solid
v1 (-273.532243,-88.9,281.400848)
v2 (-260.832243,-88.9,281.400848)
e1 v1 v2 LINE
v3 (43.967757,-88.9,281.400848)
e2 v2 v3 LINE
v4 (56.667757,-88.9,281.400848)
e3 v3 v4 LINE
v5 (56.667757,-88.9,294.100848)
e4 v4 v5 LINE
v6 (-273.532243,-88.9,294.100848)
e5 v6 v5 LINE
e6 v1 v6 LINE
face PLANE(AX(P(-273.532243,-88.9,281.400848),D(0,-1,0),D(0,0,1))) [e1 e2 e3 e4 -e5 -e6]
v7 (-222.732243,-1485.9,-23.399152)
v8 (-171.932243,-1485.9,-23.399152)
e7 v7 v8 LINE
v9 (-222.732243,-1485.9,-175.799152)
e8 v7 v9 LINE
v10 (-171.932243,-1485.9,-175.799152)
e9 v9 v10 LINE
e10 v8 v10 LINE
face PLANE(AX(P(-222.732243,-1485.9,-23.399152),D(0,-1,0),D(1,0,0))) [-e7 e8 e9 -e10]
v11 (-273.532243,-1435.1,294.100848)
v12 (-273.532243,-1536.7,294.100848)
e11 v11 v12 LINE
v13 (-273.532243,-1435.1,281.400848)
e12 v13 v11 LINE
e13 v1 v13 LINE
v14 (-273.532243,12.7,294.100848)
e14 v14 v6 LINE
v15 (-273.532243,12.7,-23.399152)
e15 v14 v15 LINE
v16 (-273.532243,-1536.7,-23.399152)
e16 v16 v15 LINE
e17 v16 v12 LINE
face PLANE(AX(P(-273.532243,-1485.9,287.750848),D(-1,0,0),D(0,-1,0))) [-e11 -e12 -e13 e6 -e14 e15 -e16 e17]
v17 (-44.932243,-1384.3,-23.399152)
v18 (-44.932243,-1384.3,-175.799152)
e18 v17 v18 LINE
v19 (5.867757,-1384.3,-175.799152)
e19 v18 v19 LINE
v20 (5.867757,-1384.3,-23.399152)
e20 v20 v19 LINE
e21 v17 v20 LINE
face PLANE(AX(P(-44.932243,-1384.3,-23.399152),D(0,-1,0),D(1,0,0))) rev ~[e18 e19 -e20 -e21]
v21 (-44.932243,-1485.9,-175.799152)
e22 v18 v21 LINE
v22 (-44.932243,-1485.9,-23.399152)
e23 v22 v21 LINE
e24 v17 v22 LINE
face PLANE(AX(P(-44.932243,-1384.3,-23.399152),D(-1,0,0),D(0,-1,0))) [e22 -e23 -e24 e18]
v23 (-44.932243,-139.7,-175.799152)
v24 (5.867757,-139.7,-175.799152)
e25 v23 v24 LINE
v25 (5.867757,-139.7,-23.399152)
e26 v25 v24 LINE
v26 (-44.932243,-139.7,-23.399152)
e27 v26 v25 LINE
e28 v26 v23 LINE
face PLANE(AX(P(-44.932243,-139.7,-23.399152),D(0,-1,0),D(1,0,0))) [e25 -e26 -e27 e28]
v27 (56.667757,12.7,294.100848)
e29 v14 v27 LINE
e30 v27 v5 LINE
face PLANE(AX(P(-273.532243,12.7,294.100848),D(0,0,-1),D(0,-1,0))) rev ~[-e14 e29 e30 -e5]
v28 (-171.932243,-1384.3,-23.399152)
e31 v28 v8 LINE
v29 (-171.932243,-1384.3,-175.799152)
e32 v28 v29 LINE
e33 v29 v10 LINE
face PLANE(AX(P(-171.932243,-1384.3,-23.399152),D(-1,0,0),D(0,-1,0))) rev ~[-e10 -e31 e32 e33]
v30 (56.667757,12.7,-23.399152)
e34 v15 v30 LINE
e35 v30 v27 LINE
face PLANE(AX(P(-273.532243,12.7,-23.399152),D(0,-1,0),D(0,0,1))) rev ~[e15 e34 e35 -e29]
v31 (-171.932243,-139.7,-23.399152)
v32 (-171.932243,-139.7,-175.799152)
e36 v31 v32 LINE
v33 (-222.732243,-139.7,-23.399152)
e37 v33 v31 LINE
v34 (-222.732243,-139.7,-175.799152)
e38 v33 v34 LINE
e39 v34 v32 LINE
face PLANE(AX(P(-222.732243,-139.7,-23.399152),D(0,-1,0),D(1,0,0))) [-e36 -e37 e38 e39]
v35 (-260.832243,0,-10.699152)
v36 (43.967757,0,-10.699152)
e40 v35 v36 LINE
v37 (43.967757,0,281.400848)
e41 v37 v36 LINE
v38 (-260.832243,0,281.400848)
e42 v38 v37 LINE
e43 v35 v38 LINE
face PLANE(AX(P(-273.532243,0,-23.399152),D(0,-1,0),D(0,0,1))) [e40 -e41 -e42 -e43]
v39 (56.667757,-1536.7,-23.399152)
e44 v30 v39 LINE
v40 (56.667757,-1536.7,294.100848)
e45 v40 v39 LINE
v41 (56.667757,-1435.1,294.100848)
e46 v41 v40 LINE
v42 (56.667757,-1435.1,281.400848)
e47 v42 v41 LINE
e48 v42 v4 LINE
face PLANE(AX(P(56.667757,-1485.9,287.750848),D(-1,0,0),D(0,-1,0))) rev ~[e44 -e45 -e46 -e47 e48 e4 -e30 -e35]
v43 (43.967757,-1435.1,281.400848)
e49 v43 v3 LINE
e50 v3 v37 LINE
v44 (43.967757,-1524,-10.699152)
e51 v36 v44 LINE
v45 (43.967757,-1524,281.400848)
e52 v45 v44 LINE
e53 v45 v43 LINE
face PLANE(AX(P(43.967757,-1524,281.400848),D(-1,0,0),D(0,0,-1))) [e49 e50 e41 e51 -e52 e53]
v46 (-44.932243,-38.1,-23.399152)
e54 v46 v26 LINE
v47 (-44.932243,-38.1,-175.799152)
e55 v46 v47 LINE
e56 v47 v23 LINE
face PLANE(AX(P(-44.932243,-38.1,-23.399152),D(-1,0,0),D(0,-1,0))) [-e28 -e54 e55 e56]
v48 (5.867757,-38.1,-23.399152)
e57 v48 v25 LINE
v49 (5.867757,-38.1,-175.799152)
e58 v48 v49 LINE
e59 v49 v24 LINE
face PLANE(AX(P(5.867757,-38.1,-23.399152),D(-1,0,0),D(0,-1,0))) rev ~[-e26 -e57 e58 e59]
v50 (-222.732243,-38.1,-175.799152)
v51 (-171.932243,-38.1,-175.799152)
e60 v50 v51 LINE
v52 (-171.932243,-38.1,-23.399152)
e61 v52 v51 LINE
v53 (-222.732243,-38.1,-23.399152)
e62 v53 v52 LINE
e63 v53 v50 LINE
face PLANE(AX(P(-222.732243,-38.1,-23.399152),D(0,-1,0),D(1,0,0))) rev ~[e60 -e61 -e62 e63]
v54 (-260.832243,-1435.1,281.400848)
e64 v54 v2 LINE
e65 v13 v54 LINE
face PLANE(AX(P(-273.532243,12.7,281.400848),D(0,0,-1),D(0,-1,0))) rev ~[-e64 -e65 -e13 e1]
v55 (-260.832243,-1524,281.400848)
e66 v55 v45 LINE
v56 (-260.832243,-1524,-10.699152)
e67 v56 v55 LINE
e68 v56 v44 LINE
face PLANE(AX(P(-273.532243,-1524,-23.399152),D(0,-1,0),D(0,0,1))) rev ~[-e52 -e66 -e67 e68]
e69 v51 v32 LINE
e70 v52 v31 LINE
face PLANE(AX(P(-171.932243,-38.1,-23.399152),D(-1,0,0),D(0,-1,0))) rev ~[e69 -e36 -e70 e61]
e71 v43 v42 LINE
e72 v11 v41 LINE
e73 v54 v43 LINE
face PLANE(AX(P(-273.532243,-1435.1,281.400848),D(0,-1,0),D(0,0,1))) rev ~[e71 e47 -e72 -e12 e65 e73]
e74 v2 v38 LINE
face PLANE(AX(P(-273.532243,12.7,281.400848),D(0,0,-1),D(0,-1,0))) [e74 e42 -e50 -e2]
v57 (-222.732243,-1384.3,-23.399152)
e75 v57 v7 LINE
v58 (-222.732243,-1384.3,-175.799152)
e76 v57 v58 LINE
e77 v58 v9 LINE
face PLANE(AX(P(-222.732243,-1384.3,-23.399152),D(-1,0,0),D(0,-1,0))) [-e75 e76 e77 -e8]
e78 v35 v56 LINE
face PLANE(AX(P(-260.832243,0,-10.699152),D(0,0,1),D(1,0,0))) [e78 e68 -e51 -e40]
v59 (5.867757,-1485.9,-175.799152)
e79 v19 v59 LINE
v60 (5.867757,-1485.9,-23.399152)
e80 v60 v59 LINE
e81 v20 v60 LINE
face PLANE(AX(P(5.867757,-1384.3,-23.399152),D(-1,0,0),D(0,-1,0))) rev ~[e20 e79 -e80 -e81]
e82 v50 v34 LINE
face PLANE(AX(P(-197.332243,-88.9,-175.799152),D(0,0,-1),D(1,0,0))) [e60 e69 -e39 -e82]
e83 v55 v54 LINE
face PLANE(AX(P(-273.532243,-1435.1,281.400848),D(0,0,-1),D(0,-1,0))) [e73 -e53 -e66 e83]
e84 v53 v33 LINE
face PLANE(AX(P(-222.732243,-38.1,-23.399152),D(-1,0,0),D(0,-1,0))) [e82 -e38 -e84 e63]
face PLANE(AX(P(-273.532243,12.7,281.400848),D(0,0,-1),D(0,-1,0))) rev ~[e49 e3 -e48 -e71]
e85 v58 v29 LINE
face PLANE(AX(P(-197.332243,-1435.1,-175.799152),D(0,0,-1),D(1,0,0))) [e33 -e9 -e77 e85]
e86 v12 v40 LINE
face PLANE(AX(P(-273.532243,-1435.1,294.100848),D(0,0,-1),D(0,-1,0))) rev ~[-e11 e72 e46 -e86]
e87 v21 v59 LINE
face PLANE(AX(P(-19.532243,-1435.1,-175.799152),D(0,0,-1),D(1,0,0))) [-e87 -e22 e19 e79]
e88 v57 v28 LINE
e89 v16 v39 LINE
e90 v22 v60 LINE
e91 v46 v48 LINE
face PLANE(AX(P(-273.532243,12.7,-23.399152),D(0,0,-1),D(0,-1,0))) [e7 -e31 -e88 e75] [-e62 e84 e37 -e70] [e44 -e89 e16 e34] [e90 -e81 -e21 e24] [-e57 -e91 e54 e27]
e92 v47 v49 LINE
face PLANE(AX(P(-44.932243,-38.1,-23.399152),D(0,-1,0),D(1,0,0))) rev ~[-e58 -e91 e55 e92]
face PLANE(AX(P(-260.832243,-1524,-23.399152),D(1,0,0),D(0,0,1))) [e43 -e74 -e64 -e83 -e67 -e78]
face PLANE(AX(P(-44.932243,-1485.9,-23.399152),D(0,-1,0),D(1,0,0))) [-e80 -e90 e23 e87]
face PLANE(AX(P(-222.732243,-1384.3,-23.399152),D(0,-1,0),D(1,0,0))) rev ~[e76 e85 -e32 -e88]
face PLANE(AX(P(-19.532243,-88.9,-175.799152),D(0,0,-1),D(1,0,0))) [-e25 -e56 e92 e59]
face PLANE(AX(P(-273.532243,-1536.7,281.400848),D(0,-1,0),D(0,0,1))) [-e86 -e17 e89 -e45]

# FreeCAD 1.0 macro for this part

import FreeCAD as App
import Part
import Sketcher

V = App.Vector
Q = App.Units.Quantity

doc = App.newDocument("Part")
body = doc.addObject("PartDesign::Body", "Body")

# Sketch on XZ plane
sketch1 = body.newObject("Sketcher::SketchObject", "Sketch")
sketch1.AttachmentSupport = (doc.getObject("XZ_Plane"), [""])
sketch1.MapMode = "FlatFace"
sketch1.addGeometry(Part.LineSegment(V(-261, -11, 0), V(-261, -23, 0)), False)
sketch1.addGeometry(Part.LineSegment(V(-261, -23, 0), V(44, -23, 0)), False)
sketch1.addGeometry(Part.LineSegment(V(44, -23, 0), V(44, -11, 0)), False)
sketch1.addGeometry(Part.LineSegment(V(44, -11, 0), V(-261, -11, 0)), False)
sketch1.addConstraint(Sketcher.Constraint("Coincident", 0, 2, 1, 1))
sketch1.addConstraint(Sketcher.Constraint("Coincident", 1, 2, 2, 1))
sketch1.addConstraint(Sketcher.Constraint("Coincident", 2, 2, 3, 1))
sketch1.addConstraint(Sketcher.Constraint("Coincident", 3, 2, 0, 1))
sketch1.addConstraint(Sketcher.Constraint("Vertical", 0))
sketch1.addConstraint(Sketcher.Constraint("Horizontal", 1))
sketch1.addConstraint(Sketcher.Constraint("Vertical", 2))
sketch1.addConstraint(Sketcher.Constraint("Horizontal", 3))
sketch1.addConstraint(Sketcher.Constraint("DistanceX", 1, 1, 1, 2, Q("12 in")))
sketch1.addConstraint(Sketcher.Constraint("DistanceY", 0, 2, 0, 1, Q("0.5 in")))
sketch1.addConstraint(Sketcher.Constraint("DistanceY", 0, 2, -1, 1, 23.399152))
sketch1.addConstraint(Sketcher.Constraint("DistanceX", 0, 2, -1, 1, 260.832243))
pad1 = body.newObject("PartDesign::Pad", "Pad")
pad1.Profile = sketch1
pad1.Length = Q("60 in")

# Sketch on XZ plane
sketch2 = body.newObject("Sketcher::SketchObject", "Sketch001")
sketch2.AttachmentSupport = (doc.getObject("XZ_Plane"), [""])
sketch2.MapMode = "FlatFace"
sketch2.AttachmentOffset = App.Placement(V(0, 0, 60 * 25.4), App.Rotation())
sketch2.addGeometry(Part.LineSegment(V(-274, -23, 0), V(-261, -23, 0)), False)
sketch2.addGeometry(Part.LineSegment(V(-261, -23, 0), V(-261, 281, 0)), False)
sketch2.addGeometry(Part.LineSegment(V(-261, 281, 0), V(-274, 281, 0)), False)
sketch2.addGeometry(Part.LineSegment(V(-274, 281, 0), V(-274, -23, 0)), False)
sketch2.addGeometry(Part.LineSegment(V(44, -23, 0), V(57, -23, 0)), False)
sketch2.addGeometry(Part.LineSegment(V(57, -23, 0), V(57, 281, 0)), False)
sketch2.addGeometry(Part.LineSegment(V(57, 281, 0), V(44, 281, 0)), False)
sketch2.addGeometry(Part.LineSegment(V(44, 281, 0), V(44, -23, 0)), False)
sketch2.addConstraint(Sketcher.Constraint("Coincident", 0, 2, 1, 1))
sketch2.addConstraint(Sketcher.Constraint("Coincident", 1, 2, 2, 1))
sketch2.addConstraint(Sketcher.Constraint("Coincident", 2, 2, 3, 1))
sketch2.addConstraint(Sketcher.Constraint("Coincident", 3, 2, 0, 1))
sketch2.addConstraint(Sketcher.Constraint("Coincident", 4, 2, 5, 1))
sketch2.addConstraint(Sketcher.Constraint("Coincident", 5, 2, 6, 1))
sketch2.addConstraint(Sketcher.Constraint("Coincident", 6, 2, 7, 1))
sketch2.addConstraint(Sketcher.Constraint("Coincident", 7, 2, 4, 1))
sketch2.addConstraint(Sketcher.Constraint("Horizontal", 0))
sketch2.addConstraint(Sketcher.Constraint("Vertical", 1))
sketch2.addConstraint(Sketcher.Constraint("Horizontal", 2))
sketch2.addConstraint(Sketcher.Constraint("Vertical", 3))
sketch2.addConstraint(Sketcher.Constraint("Horizontal", 4))
sketch2.addConstraint(Sketcher.Constraint("Vertical", 5))
sketch2.addConstraint(Sketcher.Constraint("Horizontal", 6))
sketch2.addConstraint(Sketcher.Constraint("Vertical", 7))
sketch2.addConstraint(Sketcher.Constraint("Horizontal", 3, 2, 4, 2))
sketch2.addConstraint(Sketcher.Constraint("Horizontal", 2, 2, 5, 2))
sketch2.addConstraint(Sketcher.Constraint("Equal", 2, 4))
sketch2.addConstraint(Sketcher.Constraint("DistanceY", 1, 1, 1, 2, Q("12 in")))
sketch2.addConstraint(Sketcher.Constraint("DistanceX", 0, 1, 0, 2, Q("0.5 in")))
sketch2.addConstraint(Sketcher.Constraint("DistanceX", 3, 2, 4, 2, Q("13 in")))
sketch2.addConstraint(Sketcher.Constraint("DistanceY", 0, 2, -1, 1, 23.399152))
sketch2.addConstraint(Sketcher.Constraint("DistanceX", 0, 2, -1, 1, 260.832243))
pad2 = body.newObject("PartDesign::Pad", "Pad001")
pad2.Profile = sketch2
pad2.Length = Q("60 in")
pad2.Reversed = True

# Sketch on YZ plane
sketch3 = body.newObject("Sketcher::SketchObject", "Sketch002")
sketch3.AttachmentSupport = (doc.getObject("YZ_Plane"), [""])
sketch3.MapMode = "FlatFace"
sketch3.AttachmentOffset = App.Placement(V(0, 0, -273.532243), App.Rotation())
sketch3.addGeometry(Part.LineSegment(V(13, 281, 0), V(13, -23, 0)), False)
sketch3.addGeometry(Part.LineSegment(V(13, -23, 0), V(0, -23, 0)), False)
sketch3.addGeometry(Part.LineSegment(V(0, -23, 0), V(0, 281, 0)), False)
sketch3.addGeometry(Part.LineSegment(V(0, 281, 0), V(13, 281, 0)), False)
sketch3.addGeometry(Part.LineSegment(V(-1524, 281, 0), V(-1524, -23, 0)), False)
sketch3.addGeometry(Part.LineSegment(V(-1524, -23, 0), V(-1537, -23, 0)), False)
sketch3.addGeometry(Part.LineSegment(V(-1537, -23, 0), V(-1537, 281, 0)), False)
sketch3.addGeometry(Part.LineSegment(V(-1537, 281, 0), V(-1524, 281, 0)), False)
sketch3.addConstraint(Sketcher.Constraint("Coincident", 0, 2, 1, 1))
sketch3.addConstraint(Sketcher.Constraint("Coincident", 1, 2, 2, 1))
sketch3.addConstraint(Sketcher.Constraint("Coincident", 2, 2, 3, 1))
sketch3.addConstraint(Sketcher.Constraint("Coincident", 3, 2, 0, 1))
sketch3.addConstraint(Sketcher.Constraint("Coincident", 4, 2, 5, 1))
sketch3.addConstraint(Sketcher.Constraint("Coincident", 5, 2, 6, 1))
sketch3.addConstraint(Sketcher.Constraint("Coincident", 6, 2, 7, 1))
sketch3.addConstraint(Sketcher.Constraint("Coincident", 7, 2, 4, 1))
sketch3.addConstraint(Sketcher.Constraint("Vertical", 0))
sketch3.addConstraint(Sketcher.Constraint("Horizontal", 1))
sketch3.addConstraint(Sketcher.Constraint("Vertical", 2))
sketch3.addConstraint(Sketcher.Constraint("Horizontal", 3))
sketch3.addConstraint(Sketcher.Constraint("Vertical", 4))
sketch3.addConstraint(Sketcher.Constraint("Horizontal", 5))
sketch3.addConstraint(Sketcher.Constraint("Vertical", 6))
sketch3.addConstraint(Sketcher.Constraint("Horizontal", 7))
sketch3.addConstraint(Sketcher.Constraint("PointOnObject", 1, 2, -2))
sketch3.addConstraint(Sketcher.Constraint("Horizontal", 1, 2, 4, 2))
sketch3.addConstraint(Sketcher.Constraint("Horizontal", 3, 2, 6, 2))
sketch3.addConstraint(Sketcher.Constraint("Equal", 3, 5))
sketch3.addConstraint(Sketcher.Constraint("DistanceY", 0, 2, 0, 1, Q("12 in")))
sketch3.addConstraint(Sketcher.Constraint("DistanceX", 1, 2, 1, 1, Q("0.5 in")))
sketch3.addConstraint(Sketcher.Constraint("DistanceX", 4, 2, -1, 1, Q("60 in")))
sketch3.addConstraint(Sketcher.Constraint("DistanceY", 0, 2, -1, 1, 23.399152))
pad3 = body.newObject("PartDesign::Pad", "Pad002")
pad3.Profile = sketch3
pad3.Length = Q("13 in")

# Sketch on YZ plane
sketch4 = body.newObject("Sketcher::SketchObject", "Sketch003")
sketch4.AttachmentSupport = (doc.getObject("YZ_Plane"), [""])
sketch4.MapMode = "FlatFace"
sketch4.AttachmentOffset = App.Placement(V(0, 0, -273.532243), App.Rotation())
sketch4.addGeometry(Part.LineSegment(V(-1435, 294, 0), V(-1435, 281, 0)), False)
sketch4.addGeometry(Part.LineSegment(V(-1435, 281, 0), V(-1537, 281, 0)), False)
sketch4.addGeometry(Part.LineSegment(V(-1537, 281, 0), V(-1537, 294, 0)), False)
sketch4.addGeometry(Part.LineSegment(V(-1537, 294, 0), V(-1435, 294, 0)), False)
sketch4.addGeometry(Part.LineSegment(V(13, 294, 0), V(13, 281, 0)), False)
sketch4.addGeometry(Part.LineSegment(V(13, 281, 0), V(-89, 281, 0)), False)
sketch4.addGeometry(Part.LineSegment(V(-89, 281, 0), V(-89, 294, 0)), False)
sketch4.addGeometry(Part.LineSegment(V(-89, 294, 0), V(13, 294, 0)), False)
sketch4.addConstraint(Sketcher.Constraint("Coincident", 0, 2, 1, 1))
sketch4.addConstraint(Sketcher.Constraint("Coincident", 1, 2, 2, 1))
sketch4.addConstraint(Sketcher.Constraint("Coincident", 2, 2, 3, 1))
sketch4.addConstraint(Sketcher.Constraint("Coincident", 3, 2, 0, 1))
sketch4.addConstraint(Sketcher.Constraint("Coincident", 4, 2, 5, 1))
sketch4.addConstraint(Sketcher.Constraint("Coincident", 5, 2, 6, 1))
sketch4.addConstraint(Sketcher.Constraint("Coincident", 6, 2, 7, 1))
sketch4.addConstraint(Sketcher.Constraint("Coincident", 7, 2, 4, 1))
sketch4.addConstraint(Sketcher.Constraint("Vertical", 0))
sketch4.addConstraint(Sketcher.Constraint("Horizontal", 1))
sketch4.addConstraint(Sketcher.Constraint("Vertical", 2))
sketch4.addConstraint(Sketcher.Constraint("Horizontal", 3))
sketch4.addConstraint(Sketcher.Constraint("Vertical", 4))
sketch4.addConstraint(Sketcher.Constraint("Horizontal", 5))
sketch4.addConstraint(Sketcher.Constraint("Vertical", 6))
sketch4.addConstraint(Sketcher.Constraint("Horizontal", 7))
sketch4.addConstraint(Sketcher.Constraint("Horizontal", 1, 2, 4, 2))
sketch4.addConstraint(Sketcher.Constraint("Horizontal", 3, 2, 6, 2))
sketch4.addConstraint(Sketcher.Constraint("Equal", 3, 5))
sketch4.addConstraint(Sketcher.Constraint("DistanceX", 1, 2, 1, 1, Q("4 in")))
sketch4.addConstraint(Sketcher.Constraint("DistanceY", 0, 2, 0, 1, Q("0.5 in")))
sketch4.addConstraint(Sketcher.Constraint("DistanceX", 0, 2, 4, 2, Q("57 in")))
sketch4.addConstraint(Sketcher.Constraint("DistanceX", 0, 2, -1, 1, Q("56.5 in")))
sketch4.addConstraint(Sketcher.Constraint("DistanceY", -1, 1, 0, 2, 281.400848))
pad4 = body.newObject("PartDesign::Pad", "Pad003")
pad4.Profile = sketch4
pad4.Length = Q("13 in")

# Sketch on XY plane
sketch5 = body.newObject("Sketcher::SketchObject", "Sketch004")
sketch5.AttachmentSupport = (doc.getObject("XY_Plane"), [""])
sketch5.MapMode = "FlatFace"
sketch5.AttachmentOffset = App.Placement(V(0, 0, -23.399152), App.Rotation())
sketch5.addGeometry(Part.LineSegment(V(-223, -140, 0), V(-223, -38, 0)), False)
sketch5.addGeometry(Part.LineSegment(V(-223, -38, 0), V(-172, -38, 0)), False)
sketch5.addGeometry(Part.LineSegment(V(-172, -38, 0), V(-172, -140, 0)), False)
sketch5.addGeometry(Part.LineSegment(V(-172, -140, 0), V(-223, -140, 0)), False)
sketch5.addGeometry(Part.LineSegment(V(-45, -140, 0), V(-45, -38, 0)), False)
sketch5.addGeometry(Part.LineSegment(V(-45, -38, 0), V(6, -38, 0)), False)
sketch5.addGeometry(Part.LineSegment(V(6, -38, 0), V(6, -140, 0)), False)
sketch5.addGeometry(Part.LineSegment(V(6, -140, 0), V(-45, -140, 0)), False)
sketch5.addGeometry(Part.LineSegment(V(-223, -1486, 0), V(-223, -1384, 0)), False)
sketch5.addGeometry(Part.LineSegment(V(-223, -1384, 0), V(-172, -1384, 0)), False)
sketch5.addGeometry(Part.LineSegment(V(-172, -1384, 0), V(-172, -1486, 0)), False)
sketch5.addGeometry(Part.LineSegment(V(-172, -1486, 0), V(-223, -1486, 0)), False)
sketch5.addGeometry(Part.LineSegment(V(-45, -1486, 0), V(-45, -1384, 0)), False)
sketch5.addGeometry(Part.LineSegment(V(-45, -1384, 0), V(6, -1384, 0)), False)
sketch5.addGeometry(Part.LineSegment(V(6, -1384, 0), V(6, -1486, 0)), False)
sketch5.addGeometry(Part.LineSegment(V(6, -1486, 0), V(-45, -1486, 0)), False)
sketch5.addConstraint(Sketcher.Constraint("Coincident", 0, 2, 1, 1))
sketch5.addConstraint(Sketcher.Constraint("Coincident", 1, 2, 2, 1))
sketch5.addConstraint(Sketcher.Constraint("Coincident", 2, 2, 3, 1))
sketch5.addConstraint(Sketcher.Constraint("Coincident", 3, 2, 0, 1))
sketch5.addConstraint(Sketcher.Constraint("Coincident", 4, 2, 5, 1))
sketch5.addConstraint(Sketcher.Constraint("Coincident", 5, 2, 6, 1))
sketch5.addConstraint(Sketcher.Constraint("Coincident", 6, 2, 7, 1))
sketch5.addConstraint(Sketcher.Constraint("Coincident", 7, 2, 4, 1))
sketch5.addConstraint(Sketcher.Constraint("Coincident", 8, 2, 9, 1))
sketch5.addConstraint(Sketcher.Constraint("Coincident", 9, 2, 10, 1))
sketch5.addConstraint(Sketcher.Constraint("Coincident", 10, 2, 11, 1))
sketch5.addConstraint(Sketcher.Constraint("Coincident", 11, 2, 8, 1))
sketch5.addConstraint(Sketcher.Constraint("Coincident", 12, 2, 13, 1))
sketch5.addConstraint(Sketcher.Constraint("Coincident", 13, 2, 14, 1))
sketch5.addConstraint(Sketcher.Constraint("Coincident", 14, 2, 15, 1))
sketch5.addConstraint(Sketcher.Constraint("Coincident", 15, 2, 12, 1))
sketch5.addConstraint(Sketcher.Constraint("Vertical", 0))
sketch5.addConstraint(Sketcher.Constraint("Horizontal", 1))
sketch5.addConstraint(Sketcher.Constraint("Vertical", 2))
sketch5.addConstraint(Sketcher.Constraint("Horizontal", 3))
sketch5.addConstraint(Sketcher.Constraint("Vertical", 4))
sketch5.addConstraint(Sketcher.Constraint("Horizontal", 5))
sketch5.addConstraint(Sketcher.Constraint("Vertical", 6))
sketch5.addConstraint(Sketcher.Constraint("Horizontal", 7))
sketch5.addConstraint(Sketcher.Constraint("Vertical", 8))
sketch5.addConstraint(Sketcher.Constraint("Horizontal", 9))
sketch5.addConstraint(Sketcher.Constraint("Vertical", 10))
sketch5.addConstraint(Sketcher.Constraint("Horizontal", 11))
sketch5.addConstraint(Sketcher.Constraint("Vertical", 12))
sketch5.addConstraint(Sketcher.Constraint("Horizontal", 13))
sketch5.addConstraint(Sketcher.Constraint("Vertical", 14))
sketch5.addConstraint(Sketcher.Constraint("Horizontal", 15))
sketch5.addConstraint(Sketcher.Constraint("Horizontal", 1, 2, 4, 2))
sketch5.addConstraint(Sketcher.Constraint("Horizontal", 3, 2, 6, 2))
sketch5.addConstraint(Sketcher.Constraint("Horizontal", 9, 2, 12, 2))
sketch5.addConstraint(Sketcher.Constraint("Horizontal", 11, 2, 14, 2))
sketch5.addConstraint(Sketcher.Constraint("Vertical", 3, 2, 8, 2))
sketch5.addConstraint(Sketcher.Constraint("Vertical", 2, 2, 9, 2))
sketch5.addConstraint(Sketcher.Constraint("Vertical", 7, 2, 12, 2))
sketch5.addConstraint(Sketcher.Constraint("Vertical", 6, 2, 13, 2))
sketch5.addConstraint(Sketcher.Constraint("Equal", 3, 5))
sketch5.addConstraint(Sketcher.Constraint("Equal", 6, 8))
sketch5.addConstraint(Sketcher.Constraint("DistanceX", 1, 1, 1, 2, Q("2 in")))
sketch5.addConstraint(Sketcher.Constraint("DistanceY", 0, 1, 0, 2, Q("4 in")))
sketch5.addConstraint(Sketcher.Constraint("DistanceX", 1, 2, 4, 2, Q("5 in")))
sketch5.addConstraint(Sketcher.Constraint("DistanceY", 8, 2, 3, 2, Q("49 in")))
sketch5.addConstraint(Sketcher.Constraint("DistanceY", 0, 2, -1, 1, Q("1.5 in")))
sketch5.addConstraint(Sketcher.Constraint("DistanceX", 0, 2, -1, 1, 222.732243))
pad5 = body.newObject("PartDesign::Pad", "Pad004")
pad5.Profile = sketch5
pad5.Length = Q("6 in")
pad5.Reversed = True

doc.recompute()
